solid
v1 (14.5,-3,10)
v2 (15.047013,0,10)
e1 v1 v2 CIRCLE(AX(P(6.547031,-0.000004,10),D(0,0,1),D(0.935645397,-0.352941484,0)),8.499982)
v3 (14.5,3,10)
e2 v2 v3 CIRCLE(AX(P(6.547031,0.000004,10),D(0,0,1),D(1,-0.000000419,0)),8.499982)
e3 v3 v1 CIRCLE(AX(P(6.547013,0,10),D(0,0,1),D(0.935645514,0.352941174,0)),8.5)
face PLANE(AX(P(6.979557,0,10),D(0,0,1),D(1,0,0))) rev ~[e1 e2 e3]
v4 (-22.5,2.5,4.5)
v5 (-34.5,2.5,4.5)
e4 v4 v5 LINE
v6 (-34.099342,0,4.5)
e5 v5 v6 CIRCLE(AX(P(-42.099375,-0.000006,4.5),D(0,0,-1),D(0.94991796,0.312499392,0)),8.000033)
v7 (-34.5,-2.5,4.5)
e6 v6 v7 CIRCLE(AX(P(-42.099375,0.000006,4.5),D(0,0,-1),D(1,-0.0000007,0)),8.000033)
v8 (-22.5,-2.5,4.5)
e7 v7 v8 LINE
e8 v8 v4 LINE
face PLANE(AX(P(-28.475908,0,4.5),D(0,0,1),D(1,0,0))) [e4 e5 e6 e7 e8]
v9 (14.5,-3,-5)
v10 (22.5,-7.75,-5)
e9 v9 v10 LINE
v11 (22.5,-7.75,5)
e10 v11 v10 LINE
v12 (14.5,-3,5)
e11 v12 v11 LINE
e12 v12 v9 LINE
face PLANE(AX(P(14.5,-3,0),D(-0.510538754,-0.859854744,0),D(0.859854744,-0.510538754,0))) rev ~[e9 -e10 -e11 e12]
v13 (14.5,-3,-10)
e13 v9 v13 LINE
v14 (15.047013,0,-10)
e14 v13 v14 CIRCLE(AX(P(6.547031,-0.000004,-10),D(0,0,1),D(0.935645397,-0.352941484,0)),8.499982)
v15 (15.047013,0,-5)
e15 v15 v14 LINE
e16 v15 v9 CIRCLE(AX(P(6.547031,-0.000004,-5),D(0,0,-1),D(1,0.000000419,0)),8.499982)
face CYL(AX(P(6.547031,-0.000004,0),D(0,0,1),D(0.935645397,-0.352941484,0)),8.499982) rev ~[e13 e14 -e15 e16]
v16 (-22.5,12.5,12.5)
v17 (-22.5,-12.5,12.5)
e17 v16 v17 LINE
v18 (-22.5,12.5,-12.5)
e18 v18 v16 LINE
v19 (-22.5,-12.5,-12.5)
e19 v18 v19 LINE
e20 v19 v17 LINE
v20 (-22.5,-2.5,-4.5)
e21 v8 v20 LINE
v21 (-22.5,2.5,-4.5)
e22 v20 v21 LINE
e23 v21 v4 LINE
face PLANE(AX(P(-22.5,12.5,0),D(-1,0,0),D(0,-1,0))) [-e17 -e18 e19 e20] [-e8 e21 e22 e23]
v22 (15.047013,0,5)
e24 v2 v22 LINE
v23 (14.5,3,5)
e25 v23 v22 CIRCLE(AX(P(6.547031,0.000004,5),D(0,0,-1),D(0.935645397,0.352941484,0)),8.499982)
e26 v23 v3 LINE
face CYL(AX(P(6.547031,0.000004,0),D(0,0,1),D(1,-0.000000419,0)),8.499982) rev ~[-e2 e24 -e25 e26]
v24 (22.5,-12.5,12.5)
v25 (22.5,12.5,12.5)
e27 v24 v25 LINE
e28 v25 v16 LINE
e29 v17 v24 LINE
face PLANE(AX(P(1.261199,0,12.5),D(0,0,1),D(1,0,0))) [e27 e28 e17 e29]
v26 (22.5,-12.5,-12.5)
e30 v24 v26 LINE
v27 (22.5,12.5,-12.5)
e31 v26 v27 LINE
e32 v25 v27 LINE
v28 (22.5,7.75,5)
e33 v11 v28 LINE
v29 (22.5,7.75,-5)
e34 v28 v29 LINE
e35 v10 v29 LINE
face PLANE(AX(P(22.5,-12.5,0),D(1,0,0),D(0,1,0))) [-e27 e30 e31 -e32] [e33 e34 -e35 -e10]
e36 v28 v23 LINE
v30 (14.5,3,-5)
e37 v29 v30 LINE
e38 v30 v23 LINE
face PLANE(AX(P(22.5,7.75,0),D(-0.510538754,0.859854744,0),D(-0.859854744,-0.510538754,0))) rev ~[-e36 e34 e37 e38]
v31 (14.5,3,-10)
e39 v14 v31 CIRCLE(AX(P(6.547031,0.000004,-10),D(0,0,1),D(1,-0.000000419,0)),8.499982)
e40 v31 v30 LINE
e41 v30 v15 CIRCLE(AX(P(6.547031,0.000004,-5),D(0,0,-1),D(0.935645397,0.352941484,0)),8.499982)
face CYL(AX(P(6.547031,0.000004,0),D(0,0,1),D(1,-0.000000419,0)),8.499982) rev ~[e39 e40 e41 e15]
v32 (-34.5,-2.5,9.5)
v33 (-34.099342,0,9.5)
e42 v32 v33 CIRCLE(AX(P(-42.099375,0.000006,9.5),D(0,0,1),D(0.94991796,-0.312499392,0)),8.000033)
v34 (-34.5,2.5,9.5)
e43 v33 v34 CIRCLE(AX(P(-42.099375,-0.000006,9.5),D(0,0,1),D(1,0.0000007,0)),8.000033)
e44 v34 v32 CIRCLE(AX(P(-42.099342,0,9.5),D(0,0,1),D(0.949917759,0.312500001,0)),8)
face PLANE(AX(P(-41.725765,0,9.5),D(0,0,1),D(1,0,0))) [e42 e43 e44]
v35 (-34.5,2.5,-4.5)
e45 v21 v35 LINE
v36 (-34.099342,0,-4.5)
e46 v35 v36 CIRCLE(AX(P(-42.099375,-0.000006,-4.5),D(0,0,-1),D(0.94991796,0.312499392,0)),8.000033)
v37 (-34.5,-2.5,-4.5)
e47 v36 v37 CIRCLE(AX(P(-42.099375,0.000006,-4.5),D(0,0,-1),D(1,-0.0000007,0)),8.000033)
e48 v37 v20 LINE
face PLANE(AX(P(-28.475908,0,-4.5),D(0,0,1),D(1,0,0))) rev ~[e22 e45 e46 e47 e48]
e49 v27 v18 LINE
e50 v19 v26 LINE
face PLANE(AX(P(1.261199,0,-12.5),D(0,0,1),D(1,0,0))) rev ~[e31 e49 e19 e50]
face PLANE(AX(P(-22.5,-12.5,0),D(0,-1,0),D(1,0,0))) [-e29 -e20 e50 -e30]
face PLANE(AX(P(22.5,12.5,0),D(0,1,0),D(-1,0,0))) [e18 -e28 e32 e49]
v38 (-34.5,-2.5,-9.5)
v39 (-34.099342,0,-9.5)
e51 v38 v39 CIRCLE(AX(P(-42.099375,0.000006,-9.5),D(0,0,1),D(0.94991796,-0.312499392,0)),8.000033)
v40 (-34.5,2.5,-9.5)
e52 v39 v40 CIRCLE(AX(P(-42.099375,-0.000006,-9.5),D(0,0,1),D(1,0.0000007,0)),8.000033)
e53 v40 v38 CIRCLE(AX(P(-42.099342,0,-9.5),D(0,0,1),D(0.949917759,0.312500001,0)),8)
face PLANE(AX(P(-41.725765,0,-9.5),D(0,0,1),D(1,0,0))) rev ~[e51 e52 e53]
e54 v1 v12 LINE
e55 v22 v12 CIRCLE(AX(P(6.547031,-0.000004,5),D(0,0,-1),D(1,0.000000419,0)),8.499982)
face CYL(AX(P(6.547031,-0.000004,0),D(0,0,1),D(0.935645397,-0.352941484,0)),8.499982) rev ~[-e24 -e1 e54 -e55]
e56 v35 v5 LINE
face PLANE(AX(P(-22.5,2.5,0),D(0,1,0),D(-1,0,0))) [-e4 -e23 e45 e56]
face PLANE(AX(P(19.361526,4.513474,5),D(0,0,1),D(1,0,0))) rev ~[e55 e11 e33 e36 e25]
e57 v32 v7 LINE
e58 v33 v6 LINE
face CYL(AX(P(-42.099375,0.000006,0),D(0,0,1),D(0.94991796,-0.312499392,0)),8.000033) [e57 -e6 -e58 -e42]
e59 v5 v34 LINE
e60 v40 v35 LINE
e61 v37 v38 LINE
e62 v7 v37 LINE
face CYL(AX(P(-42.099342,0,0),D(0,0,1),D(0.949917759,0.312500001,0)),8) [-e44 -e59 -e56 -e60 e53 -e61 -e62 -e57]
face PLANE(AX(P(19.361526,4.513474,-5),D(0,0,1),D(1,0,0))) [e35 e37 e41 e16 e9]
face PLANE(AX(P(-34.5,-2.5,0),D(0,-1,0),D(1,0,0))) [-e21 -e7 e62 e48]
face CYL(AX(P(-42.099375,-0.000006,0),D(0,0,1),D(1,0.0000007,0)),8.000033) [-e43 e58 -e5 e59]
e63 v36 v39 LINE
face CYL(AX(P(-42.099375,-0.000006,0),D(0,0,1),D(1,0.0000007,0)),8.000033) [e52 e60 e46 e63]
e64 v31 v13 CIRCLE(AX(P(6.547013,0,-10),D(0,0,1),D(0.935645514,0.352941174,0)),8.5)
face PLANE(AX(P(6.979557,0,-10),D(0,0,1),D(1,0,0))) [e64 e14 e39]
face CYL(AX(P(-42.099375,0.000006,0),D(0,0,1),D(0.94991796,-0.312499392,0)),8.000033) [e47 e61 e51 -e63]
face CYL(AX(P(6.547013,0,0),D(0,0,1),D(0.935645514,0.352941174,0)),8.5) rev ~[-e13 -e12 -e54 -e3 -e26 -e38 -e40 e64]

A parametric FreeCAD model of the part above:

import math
import FreeCAD as App
import Part
import Sketcher
from FreeCAD import Vector
Q = App.Units.Quantity

doc = App.newDocument("Part")
body = doc.addObject("PartDesign::Body", "Body")

# Sketch on XY plane
sketch1 = doc.addObject("Sketcher::SketchObject", "Sketch")
body.addObject(sketch1)
sketch1.AttachmentSupport = (doc.XY_Plane, [""])
sketch1.MapMode = "FlatFace"
sketch1.addGeometry([
    Part.LineSegment(Vector(22, 12, 0), Vector(-22, 12, 0)),
    Part.LineSegment(Vector(-22, 12, 0), Vector(-22, -12, 0)),
    Part.LineSegment(Vector(-22, -12, 0), Vector(22, -12, 0)),
    Part.LineSegment(Vector(22, -12, 0), Vector(22, 12, 0)),
], False)
sketch1.addConstraint([
    Sketcher.Constraint("Coincident", 0, 2, 1, 1),
    Sketcher.Constraint("Coincident", 1, 2, 2, 1),
    Sketcher.Constraint("Coincident", 2, 2, 3, 1),
    Sketcher.Constraint("Coincident", 3, 2, 0, 1),
    Sketcher.Constraint("Horizontal", 0),
    Sketcher.Constraint("Vertical", 1),
    Sketcher.Constraint("Horizontal", 2),
    Sketcher.Constraint("Vertical", 3),
    Sketcher.Constraint("Symmetric", 0, 2, 2, 2, -1, 1),
    Sketcher.Constraint("DistanceX", 0, 2, 0, 1, Q("45 mm")),
    Sketcher.Constraint("DistanceY", 1, 2, 1, 1, Q("25 mm")),
])
pad1 = doc.addObject("PartDesign::Pad", "Pad")
body.addObject(pad1)
pad1.Profile = sketch1
pad1.Length = 25
pad1.Midplane = True

# Sketch on XY plane
sketch2 = doc.addObject("Sketcher::SketchObject", "Sketch001")
body.addObject(sketch2)
sketch2.AttachmentSupport = (doc.XY_Plane, [""])
sketch2.MapMode = "FlatFace"
sketch2.addGeometry([
    Part.ArcOfCircle(Part.Circle(Vector(6.5, 0, 0), Vector(0, 0, 1), 8.5), math.radians(0), math.radians(21)),
    Part.ArcOfCircle(Part.Circle(Vector(6.5, 0, 0), Vector(0, 0, 1), 8.5), math.radians(21), math.radians(339)),
    Part.ArcOfCircle(Part.Circle(Vector(6.5, 0, 0), Vector(0, 0, 1), 8.5), math.radians(-21), math.radians(0)),
], False)
sketch2.addConstraint([
    Sketcher.Constraint("Tangent", 0, 2, 1, 1),
    Sketcher.Constraint("Tangent", 1, 2, 2, 1),
    Sketcher.Constraint("Tangent", 2, 2, 0, 1),
    Sketcher.Constraint("Symmetric", 0, 2, 1, 2, -1),
    Sketcher.Constraint("PointOnObject", 2, 2, -1),
    Sketcher.Constraint("Radius", 1, Q("8.5 mm")),
    Sketcher.Constraint("DistanceY", -1, 1, 0, 2, Q("3 mm")),
    Sketcher.Constraint("DistanceX", -1, 1, 0, 2, Q("14.5 mm")),
])
pocket1 = doc.addObject("PartDesign::Pocket", "Pocket")
body.addObject(pocket1)
pocket1.Profile = sketch2
pocket1.Length = 20
pocket1.Midplane = True

# Sketch on XY plane
sketch3 = doc.addObject("Sketcher::SketchObject", "Sketch002")
body.addObject(sketch3)
sketch3.AttachmentSupport = (doc.XY_Plane, [""])
sketch3.MapMode = "FlatFace"
sketch3.addGeometry([
    Part.LineSegment(Vector(-22.5, -2.5, 0), Vector(-22.5, 2.5, 0)),  # 0
    Part.LineSegment(Vector(-22.5, 2.5, 0), Vector(-34.5, 2.5, 0)),  # 1
    Part.ArcOfCircle(Part.Circle(Vector(-42.1, 0, 0), Vector(0, 0, 1), 8), math.radians(0), math.radians(18.21)),  # 2
    Part.ArcOfCircle(Part.Circle(Vector(-42.1, 0, 0), Vector(0, 0, 1), 8), math.radians(-18.21), math.radians(0)),  # 3
    Part.LineSegment(Vector(-34.5, -2.5, 0), Vector(-22.5, -2.5, 0)),  # 4
], False)
sketch3.addConstraint([
    Sketcher.Constraint("Coincident", 0, 2, 1, 1),
    Sketcher.Constraint("Coincident", 1, 2, 2, 2),
    Sketcher.Constraint("Tangent", 2, 1, 3, 2),
    Sketcher.Constraint("Coincident", 3, 1, 4, 1),
    Sketcher.Constraint("Coincident", 4, 2, 0, 1),
    Sketcher.Constraint("Vertical", 0),
    Sketcher.Constraint("Horizontal", 1),
    Sketcher.Constraint("Horizontal", 4),
    Sketcher.Constraint("Equal", 2, 3),
    Sketcher.Constraint("Symmetric", 1, 2, 3, 1, -1),
    Sketcher.Constraint("PointOnObject", 2, 1, -1),
    Sketcher.Constraint("DistanceX", 1, 2, 1, 1, Q("12 mm")),
    Sketcher.Constraint("DistanceY", 0, 1, 0, 2, Q("5 mm")),
    Sketcher.Constraint("DistanceX", 0, 2, -1, 1, Q("22.5 mm")),
    Sketcher.Constraint("Radius", 2, Q("8.000033 mm")),
])
pad2 = doc.addObject("PartDesign::Pad", "Pad001")
body.addObject(pad2)
pad2.Profile = sketch3
pad2.Length = 9
pad2.Midplane = True

# Sketch on XY plane
sketch4 = doc.addObject("Sketcher::SketchObject", "Sketch003")
body.addObject(sketch4)
sketch4.AttachmentSupport = (doc.XY_Plane, [""])
sketch4.MapMode = "FlatFace"
sketch4.addGeometry([
    Part.ArcOfCircle(Part.Circle(Vector(-42.099375, -0.000006, 0), Vector(0, 0, 1), 8.000033), math.radians(0.00004), math.radians(18.20992)),
    Part.ArcOfCircle(Part.Circle(Vector(-42.099342, 0, 0), Vector(0, 0, 1), 8), math.radians(18.209957), math.radians(341.790043)),
    Part.ArcOfCircle(Part.Circle(Vector(-42.099375, 0.000006, 0), Vector(0, 0, 1), 8.000033), math.radians(-18.20992), math.radians(-0.00004)),
], False)
sketch4.addConstraint([
    Sketcher.Constraint("Coincident", 0, 2, 1, 1),
    Sketcher.Constraint("Coincident", 1, 2, 2, 1),
    Sketcher.Constraint("Coincident", 2, 2, 0, 1),
    Sketcher.Constraint("PointOnObject", 1, 3, -1),
    Sketcher.Constraint("PointOnObject", 2, 2, -1),
    Sketcher.Constraint("Radius", 1, Q("8 mm")),
    Sketcher.Constraint("DistanceY", 1, 2, 0, 2, Q("5 mm")),
    Sketcher.Constraint("DistanceX", 1, 3, 2, 2, Q("8 mm")),
    Sketcher.Constraint("DistanceX", 0, 2, -1, 1, Q("34.5 mm")),
    Sketcher.Constraint("DistanceY", -1, 1, 0, 2, Q("2.5 mm")),
    Sketcher.Constraint("Radius", 0, Q("8.000033 mm")),
    Sketcher.Constraint("Radius", 2, Q("8.000033 mm")),
])
pad3 = doc.addObject("PartDesign::Pad", "Pad002")
body.addObject(pad3)
pad3.Profile = sketch4
pad3.Length = 19
pad3.Midplane = True

# Sketch on XY plane
sketch5 = doc.addObject("Sketcher::SketchObject", "Sketch004")
body.addObject(sketch5)
sketch5.AttachmentSupport = (doc.XY_Plane, [""])
sketch5.MapMode = "FlatFace"
sketch5.addGeometry([
    Part.LineSegment(Vector(22.5, 7.8, 0), Vector(14.5, 3, 0)),  # 0
    Part.ArcOfCircle(Part.Circle(Vector(6.5, 0, 0), Vector(0, 0, 1), 8.5), math.radians(0), math.radians(21)),  # 1
    Part.ArcOfCircle(Part.Circle(Vector(6.5, 0, 0), Vector(0, 0, 1), 8.5), math.radians(-21), math.radians(0)),  # 2
    Part.LineSegment(Vector(14.5, -3, 0), Vector(22.5, -7.8, 0)),  # 3
    Part.LineSegment(Vector(22.5, -7.8, 0), Vector(22.5, 7.8, 0)),  # 4
], False)
sketch5.addConstraint([
    Sketcher.Constraint("Coincident", 0, 2, 1, 2),
    Sketcher.Constraint("Tangent", 1, 1, 2, 2),
    Sketcher.Constraint("Coincident", 2, 1, 3, 1),
    Sketcher.Constraint("Coincident", 3, 2, 4, 1),
    Sketcher.Constraint("Coincident", 4, 2, 0, 1),
    Sketcher.Constraint("Vertical", 4),
    Sketcher.Constraint("Equal", 1, 2),
    Sketcher.Constraint("Symmetric", 0, 2, 2, 1, -1),
    Sketcher.Constraint("PointOnObject", 1, 1, -1),
    Sketcher.Constraint("Equal", 0, 3),
    Sketcher.Constraint("DistanceY", 4, 1, 4, 2, Q("15.5 mm")),
    Sketcher.Constraint("DistanceY", -1, 1, 0, 2, Q("3 mm")),
    Sketcher.Constraint("DistanceX", 2, 1, 3, 2, Q("8 mm")),
    Sketcher.Constraint("DistanceX", -1, 1, 0, 2, Q("14.5 mm")),
    Sketcher.Constraint("Radius", 1, Q("8.499982 mm")),
])
pocket2 = doc.addObject("PartDesign::Pocket", "Pocket001")
body.addObject(pocket2)
pocket2.Profile = sketch5
pocket2.Length = 10
pocket2.Midplane = True

doc.recompute()
